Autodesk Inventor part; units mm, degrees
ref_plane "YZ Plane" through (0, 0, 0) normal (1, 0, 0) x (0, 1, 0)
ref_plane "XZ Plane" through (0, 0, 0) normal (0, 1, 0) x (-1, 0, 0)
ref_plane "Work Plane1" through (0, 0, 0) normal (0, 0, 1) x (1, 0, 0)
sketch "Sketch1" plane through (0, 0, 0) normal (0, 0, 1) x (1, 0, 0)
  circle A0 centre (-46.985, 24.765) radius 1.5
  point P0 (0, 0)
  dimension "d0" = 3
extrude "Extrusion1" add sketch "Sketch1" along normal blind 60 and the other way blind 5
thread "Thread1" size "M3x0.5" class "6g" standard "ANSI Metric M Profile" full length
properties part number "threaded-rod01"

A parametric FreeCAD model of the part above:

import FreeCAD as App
import Part
import Sketcher
from FreeCAD import Vector
Q = App.Units.Quantity

doc = App.newDocument("Part")
params = doc.addObject("Spreadsheet::Sheet", "Params")
for row, (alias, value) in enumerate([
    ("sketch1_diameter", "3 mm"),
    ("pad1_length", "60 mm"),
    ("pad1_length2", "5 mm"),
], start=1):
    params.set(f"A{row}", alias)
    params.set(f"B{row}", "=" + value)
    params.setAlias(f"B{row}", alias)

body = doc.addObject("PartDesign::Body", "Body")

sketch1 = doc.addObject("Sketcher::SketchObject", "Sketch")
body.addObject(sketch1)
sketch1.AttachmentSupport = (doc.XY_Plane, [""])
sketch1.MapMode = "FlatFace"
sketch1.addGeometry(Part.Circle(Vector(-46.985, 24.765, 0), Vector(0, 0, 1), 1.5), False)
sketch1.addConstraint([
    Sketcher.Constraint("Diameter", 0, Q("3 mm")),
    Sketcher.Constraint("DistanceX", 0, 3, -1, 1, Q("46.985 mm")),
    Sketcher.Constraint("DistanceY", -1, 1, 0, 3, Q("24.765 mm")),
])
sketch1.setExpression("Constraints[0]", "Params.sketch1_diameter")
pad1 = doc.addObject("PartDesign::Pad", "Pad")
body.addObject(pad1)
pad1.Profile = sketch1
pad1.Type = "TwoLengths"
pad1.setExpression("Length", "Params.pad1_length")
pad1.setExpression("Length2", "Params.pad1_length2")

doc.recompute()
